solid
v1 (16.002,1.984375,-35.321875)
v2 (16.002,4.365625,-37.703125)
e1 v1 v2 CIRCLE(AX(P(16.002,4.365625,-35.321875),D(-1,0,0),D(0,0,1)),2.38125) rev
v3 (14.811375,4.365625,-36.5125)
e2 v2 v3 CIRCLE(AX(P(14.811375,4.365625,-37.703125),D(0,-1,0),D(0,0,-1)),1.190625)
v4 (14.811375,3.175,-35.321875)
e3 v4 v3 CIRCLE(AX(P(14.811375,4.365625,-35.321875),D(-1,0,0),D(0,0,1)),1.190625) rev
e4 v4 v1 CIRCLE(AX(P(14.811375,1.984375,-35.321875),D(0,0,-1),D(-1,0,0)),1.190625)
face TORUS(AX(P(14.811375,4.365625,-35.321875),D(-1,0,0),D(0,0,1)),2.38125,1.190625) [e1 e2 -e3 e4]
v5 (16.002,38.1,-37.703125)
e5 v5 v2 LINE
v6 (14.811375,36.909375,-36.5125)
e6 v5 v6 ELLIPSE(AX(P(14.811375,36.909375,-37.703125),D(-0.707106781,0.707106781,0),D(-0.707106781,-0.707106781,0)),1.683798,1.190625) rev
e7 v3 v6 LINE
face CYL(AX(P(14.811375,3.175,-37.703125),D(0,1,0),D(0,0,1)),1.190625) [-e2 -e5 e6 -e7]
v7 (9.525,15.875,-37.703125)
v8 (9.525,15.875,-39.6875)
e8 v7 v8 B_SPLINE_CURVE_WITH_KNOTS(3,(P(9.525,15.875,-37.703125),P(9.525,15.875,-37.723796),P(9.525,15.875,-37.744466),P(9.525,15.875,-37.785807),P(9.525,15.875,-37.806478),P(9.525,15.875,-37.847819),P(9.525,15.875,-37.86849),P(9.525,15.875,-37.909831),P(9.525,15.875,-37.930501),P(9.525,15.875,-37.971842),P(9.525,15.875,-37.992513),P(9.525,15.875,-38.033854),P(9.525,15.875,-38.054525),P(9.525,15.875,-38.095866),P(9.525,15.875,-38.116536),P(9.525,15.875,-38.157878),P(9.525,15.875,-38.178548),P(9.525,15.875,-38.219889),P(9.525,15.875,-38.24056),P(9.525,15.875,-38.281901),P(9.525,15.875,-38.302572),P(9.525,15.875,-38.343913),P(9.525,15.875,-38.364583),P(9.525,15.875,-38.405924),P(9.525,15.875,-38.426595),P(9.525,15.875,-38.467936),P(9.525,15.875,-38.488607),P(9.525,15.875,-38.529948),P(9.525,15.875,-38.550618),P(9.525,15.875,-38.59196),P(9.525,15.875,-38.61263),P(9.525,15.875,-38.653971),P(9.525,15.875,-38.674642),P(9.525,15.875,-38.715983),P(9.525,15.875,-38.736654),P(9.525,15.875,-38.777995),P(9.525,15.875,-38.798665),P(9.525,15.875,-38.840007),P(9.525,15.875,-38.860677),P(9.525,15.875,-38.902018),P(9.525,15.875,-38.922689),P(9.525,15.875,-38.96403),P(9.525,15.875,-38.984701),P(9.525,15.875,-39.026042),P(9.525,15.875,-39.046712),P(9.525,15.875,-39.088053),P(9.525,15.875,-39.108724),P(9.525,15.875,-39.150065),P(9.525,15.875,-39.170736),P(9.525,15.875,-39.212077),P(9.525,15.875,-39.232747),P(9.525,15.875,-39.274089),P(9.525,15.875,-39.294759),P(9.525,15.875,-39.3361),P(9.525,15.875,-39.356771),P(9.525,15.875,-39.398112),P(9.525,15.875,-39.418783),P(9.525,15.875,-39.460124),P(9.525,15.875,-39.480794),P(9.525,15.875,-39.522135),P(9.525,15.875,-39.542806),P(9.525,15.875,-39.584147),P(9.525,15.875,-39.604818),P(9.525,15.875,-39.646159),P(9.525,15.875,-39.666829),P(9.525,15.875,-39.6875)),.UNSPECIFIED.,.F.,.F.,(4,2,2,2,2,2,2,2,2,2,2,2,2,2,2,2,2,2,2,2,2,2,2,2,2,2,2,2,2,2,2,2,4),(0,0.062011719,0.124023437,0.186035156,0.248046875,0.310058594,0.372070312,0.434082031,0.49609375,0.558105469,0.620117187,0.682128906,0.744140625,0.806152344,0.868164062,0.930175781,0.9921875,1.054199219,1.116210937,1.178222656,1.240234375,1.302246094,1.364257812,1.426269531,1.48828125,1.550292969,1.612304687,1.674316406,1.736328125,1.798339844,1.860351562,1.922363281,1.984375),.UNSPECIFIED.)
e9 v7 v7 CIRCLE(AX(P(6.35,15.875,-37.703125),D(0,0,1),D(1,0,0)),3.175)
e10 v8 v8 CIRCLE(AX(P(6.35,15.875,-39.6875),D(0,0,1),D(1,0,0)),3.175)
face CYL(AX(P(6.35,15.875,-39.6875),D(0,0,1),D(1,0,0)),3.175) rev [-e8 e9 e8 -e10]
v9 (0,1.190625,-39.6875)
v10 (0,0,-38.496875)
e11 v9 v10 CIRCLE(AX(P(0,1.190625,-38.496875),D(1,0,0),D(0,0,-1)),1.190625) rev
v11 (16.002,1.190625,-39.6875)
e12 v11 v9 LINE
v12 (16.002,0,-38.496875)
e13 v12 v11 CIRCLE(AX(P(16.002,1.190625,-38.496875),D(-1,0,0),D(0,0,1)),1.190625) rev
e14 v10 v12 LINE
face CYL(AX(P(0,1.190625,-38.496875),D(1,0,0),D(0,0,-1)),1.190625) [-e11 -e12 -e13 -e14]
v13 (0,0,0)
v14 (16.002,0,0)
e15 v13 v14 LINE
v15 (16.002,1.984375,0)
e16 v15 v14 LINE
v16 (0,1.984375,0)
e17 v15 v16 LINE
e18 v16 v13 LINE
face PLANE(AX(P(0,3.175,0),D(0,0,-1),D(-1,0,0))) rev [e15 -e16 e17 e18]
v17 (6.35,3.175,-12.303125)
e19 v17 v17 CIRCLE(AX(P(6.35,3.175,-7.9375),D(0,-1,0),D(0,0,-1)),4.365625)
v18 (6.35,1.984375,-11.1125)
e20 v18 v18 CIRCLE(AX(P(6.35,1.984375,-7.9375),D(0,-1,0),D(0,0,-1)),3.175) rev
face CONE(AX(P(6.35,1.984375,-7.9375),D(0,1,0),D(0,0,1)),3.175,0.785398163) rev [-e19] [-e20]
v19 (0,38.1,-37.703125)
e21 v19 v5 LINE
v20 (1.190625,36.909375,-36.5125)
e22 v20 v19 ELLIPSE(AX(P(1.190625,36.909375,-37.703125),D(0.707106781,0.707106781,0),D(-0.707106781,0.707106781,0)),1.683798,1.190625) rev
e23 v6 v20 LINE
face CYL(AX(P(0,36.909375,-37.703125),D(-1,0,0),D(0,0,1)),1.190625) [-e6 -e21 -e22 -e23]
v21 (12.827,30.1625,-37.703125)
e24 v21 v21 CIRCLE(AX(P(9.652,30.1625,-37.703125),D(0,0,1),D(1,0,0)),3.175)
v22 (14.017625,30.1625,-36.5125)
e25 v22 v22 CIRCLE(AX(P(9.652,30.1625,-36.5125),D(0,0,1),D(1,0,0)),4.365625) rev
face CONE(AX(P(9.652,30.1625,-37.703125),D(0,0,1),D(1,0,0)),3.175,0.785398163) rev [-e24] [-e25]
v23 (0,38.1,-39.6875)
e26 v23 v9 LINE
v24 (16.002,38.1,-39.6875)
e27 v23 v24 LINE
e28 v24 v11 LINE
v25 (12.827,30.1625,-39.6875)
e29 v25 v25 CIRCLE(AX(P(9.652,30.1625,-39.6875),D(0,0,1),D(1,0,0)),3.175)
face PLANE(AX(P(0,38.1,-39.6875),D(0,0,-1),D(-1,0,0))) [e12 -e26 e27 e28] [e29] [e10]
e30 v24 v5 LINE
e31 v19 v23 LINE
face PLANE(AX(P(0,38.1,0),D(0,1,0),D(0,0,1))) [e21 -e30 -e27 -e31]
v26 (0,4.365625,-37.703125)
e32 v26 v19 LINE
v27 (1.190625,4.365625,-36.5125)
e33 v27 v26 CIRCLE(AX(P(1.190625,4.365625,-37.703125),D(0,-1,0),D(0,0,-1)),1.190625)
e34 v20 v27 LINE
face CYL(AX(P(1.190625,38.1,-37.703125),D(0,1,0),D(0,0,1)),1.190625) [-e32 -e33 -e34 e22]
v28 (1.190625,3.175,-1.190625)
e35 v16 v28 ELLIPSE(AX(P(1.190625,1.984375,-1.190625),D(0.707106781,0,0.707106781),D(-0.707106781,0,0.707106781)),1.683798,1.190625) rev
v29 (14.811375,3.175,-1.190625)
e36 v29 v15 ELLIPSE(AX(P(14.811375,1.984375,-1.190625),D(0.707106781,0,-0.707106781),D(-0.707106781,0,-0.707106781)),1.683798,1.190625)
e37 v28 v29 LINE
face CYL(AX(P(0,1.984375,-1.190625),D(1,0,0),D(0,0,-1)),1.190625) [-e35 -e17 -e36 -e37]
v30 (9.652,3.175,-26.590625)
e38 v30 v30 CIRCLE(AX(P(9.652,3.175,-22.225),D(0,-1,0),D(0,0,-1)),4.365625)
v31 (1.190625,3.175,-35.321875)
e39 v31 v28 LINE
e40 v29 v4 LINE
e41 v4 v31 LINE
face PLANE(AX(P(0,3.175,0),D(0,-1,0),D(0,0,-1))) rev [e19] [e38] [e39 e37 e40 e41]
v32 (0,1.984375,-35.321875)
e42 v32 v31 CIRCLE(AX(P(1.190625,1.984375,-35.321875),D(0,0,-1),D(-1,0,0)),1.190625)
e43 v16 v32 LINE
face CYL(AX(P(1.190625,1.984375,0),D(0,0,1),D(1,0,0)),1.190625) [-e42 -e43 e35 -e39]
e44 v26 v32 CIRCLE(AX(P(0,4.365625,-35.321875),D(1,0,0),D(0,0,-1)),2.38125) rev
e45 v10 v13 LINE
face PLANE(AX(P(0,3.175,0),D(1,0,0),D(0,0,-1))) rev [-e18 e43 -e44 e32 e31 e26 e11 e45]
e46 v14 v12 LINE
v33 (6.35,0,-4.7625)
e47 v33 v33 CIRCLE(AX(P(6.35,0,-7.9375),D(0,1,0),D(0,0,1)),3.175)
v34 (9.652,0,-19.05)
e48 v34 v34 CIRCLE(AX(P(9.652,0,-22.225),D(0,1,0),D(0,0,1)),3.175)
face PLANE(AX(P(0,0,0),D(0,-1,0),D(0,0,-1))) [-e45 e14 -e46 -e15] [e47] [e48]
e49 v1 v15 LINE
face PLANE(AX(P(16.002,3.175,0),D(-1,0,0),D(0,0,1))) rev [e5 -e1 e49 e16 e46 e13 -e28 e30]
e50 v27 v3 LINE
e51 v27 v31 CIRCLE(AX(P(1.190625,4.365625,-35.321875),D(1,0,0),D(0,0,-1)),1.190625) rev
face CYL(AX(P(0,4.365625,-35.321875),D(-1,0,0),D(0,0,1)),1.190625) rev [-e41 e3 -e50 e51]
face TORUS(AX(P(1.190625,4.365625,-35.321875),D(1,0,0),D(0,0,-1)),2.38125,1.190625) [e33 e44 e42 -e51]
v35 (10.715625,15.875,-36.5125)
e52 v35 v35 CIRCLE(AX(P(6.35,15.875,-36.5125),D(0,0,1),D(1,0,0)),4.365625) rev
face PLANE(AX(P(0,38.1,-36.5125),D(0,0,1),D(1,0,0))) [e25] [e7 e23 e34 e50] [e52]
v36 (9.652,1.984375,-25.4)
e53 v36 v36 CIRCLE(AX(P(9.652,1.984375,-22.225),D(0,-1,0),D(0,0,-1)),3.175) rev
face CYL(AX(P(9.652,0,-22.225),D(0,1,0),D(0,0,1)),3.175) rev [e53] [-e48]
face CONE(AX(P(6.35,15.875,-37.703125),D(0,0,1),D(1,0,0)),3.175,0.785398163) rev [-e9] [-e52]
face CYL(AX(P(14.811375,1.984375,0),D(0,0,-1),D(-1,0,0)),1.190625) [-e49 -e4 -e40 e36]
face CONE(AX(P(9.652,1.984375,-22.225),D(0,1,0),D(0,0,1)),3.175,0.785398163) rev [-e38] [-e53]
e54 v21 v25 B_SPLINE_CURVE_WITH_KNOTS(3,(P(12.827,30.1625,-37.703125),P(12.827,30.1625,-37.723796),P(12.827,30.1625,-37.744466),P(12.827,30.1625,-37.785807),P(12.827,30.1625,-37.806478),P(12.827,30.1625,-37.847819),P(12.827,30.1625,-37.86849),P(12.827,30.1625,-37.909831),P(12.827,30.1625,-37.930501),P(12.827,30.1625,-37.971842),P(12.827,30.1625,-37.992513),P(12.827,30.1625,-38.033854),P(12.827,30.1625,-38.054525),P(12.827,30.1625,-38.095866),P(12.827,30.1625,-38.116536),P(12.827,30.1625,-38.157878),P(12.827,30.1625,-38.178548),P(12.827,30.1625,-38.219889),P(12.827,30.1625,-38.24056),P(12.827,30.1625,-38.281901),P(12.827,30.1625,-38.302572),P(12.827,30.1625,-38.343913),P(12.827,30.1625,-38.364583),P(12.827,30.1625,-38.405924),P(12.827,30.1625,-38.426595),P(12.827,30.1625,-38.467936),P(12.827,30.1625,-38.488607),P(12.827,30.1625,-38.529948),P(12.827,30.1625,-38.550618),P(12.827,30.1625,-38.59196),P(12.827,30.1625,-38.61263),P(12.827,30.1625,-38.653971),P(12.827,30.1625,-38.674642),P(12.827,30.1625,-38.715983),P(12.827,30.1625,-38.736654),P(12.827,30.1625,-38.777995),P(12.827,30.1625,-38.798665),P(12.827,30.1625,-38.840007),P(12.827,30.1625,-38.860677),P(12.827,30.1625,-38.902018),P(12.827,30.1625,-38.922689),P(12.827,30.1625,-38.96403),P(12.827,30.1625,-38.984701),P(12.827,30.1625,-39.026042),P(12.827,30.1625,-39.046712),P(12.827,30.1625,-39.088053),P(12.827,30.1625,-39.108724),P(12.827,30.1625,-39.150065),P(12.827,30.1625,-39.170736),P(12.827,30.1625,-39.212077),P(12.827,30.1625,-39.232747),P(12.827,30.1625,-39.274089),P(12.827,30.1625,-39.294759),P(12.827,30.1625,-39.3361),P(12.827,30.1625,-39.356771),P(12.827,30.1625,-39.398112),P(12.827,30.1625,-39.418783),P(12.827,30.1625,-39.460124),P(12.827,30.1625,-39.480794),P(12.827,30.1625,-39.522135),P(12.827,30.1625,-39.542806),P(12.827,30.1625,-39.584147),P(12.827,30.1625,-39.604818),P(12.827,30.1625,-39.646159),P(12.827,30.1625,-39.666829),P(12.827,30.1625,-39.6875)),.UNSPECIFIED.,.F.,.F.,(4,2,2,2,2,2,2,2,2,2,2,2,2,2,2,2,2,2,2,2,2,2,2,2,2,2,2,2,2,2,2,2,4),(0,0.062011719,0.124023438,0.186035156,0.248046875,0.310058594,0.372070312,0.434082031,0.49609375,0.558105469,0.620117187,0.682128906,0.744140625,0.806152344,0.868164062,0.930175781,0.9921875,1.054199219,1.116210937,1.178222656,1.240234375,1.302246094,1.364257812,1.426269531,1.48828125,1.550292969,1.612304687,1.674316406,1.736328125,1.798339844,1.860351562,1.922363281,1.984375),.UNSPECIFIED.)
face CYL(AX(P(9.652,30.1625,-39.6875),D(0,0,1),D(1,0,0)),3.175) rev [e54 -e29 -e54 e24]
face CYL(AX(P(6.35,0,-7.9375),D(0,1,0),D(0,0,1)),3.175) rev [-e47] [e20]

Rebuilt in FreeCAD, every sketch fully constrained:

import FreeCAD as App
import Part
import Sketcher
Q = App.Units.Quantity


def edges_at(feature, points):
    """Names of the edges that pass closest to the given points."""
    edges = feature.Shape.Edges
    near = lambda p: min(range(len(edges)), key=lambda i: edges[i].distToShape(Part.Vertex(*p))[0])
    return sorted({f"Edge{near(p) + 1}" for p in points})


def add_polygon(sketch, points):
    """Adds a closed chain of lines whose ends are joined by coincident constraints."""
    first, n = sketch.GeometryCount, len(points)
    for a, b in zip(points, points[1:] + points[:1]):
        sketch.addGeometry(Part.LineSegment(App.Vector(*a, 0), App.Vector(*b, 0)), False)
    for i in range(n):
        sketch.addConstraint(Sketcher.Constraint("Coincident", first + i, 2, first + (i + 1) % n, 1))

doc = App.newDocument("Part")
body = doc.addObject("PartDesign::Body", "Body")

sketch1 = doc.addObject("Sketcher::SketchObject", "Sketch")
body.addObject(sketch1)
sketch1.AttachmentSupport = (doc.XZ_Plane, [""])
sketch1.MapMode = "FlatFace"
add_polygon(sketch1, [(0, -38), (0, 0), (16, 0), (16, -38)])
sketch1.addConstraint(Sketcher.Constraint("Vertical", 0))
sketch1.addConstraint(Sketcher.Constraint("Horizontal", 1))
sketch1.addConstraint(Sketcher.Constraint("Vertical", 2))
sketch1.addConstraint(Sketcher.Constraint("Horizontal", 3))
sketch1.addConstraint(Sketcher.Constraint("Coincident", 0, 2, -1, 1))
sketch1.addConstraint(Sketcher.Constraint("DistanceY", 0, 1, 0, 2, Q("1.5 in")))
sketch1.addConstraint(Sketcher.Constraint("DistanceX", 1, 1, 1, 2, Q("0.63 in")))
pad1 = doc.addObject("PartDesign::Pad", "Pad")
body.addObject(pad1)
pad1.Profile = sketch1
pad1.Length = Q("0.125 in")
pad1.Reversed = True

sketch2 = doc.addObject("Sketcher::SketchObject", "Sketch001")
body.addObject(sketch2)
sketch2.AttachmentSupport = (doc.XZ_Plane, [""])
sketch2.MapMode = "FlatFace"
add_polygon(sketch2, [(0, -36.5), (0, -39.7), (16, -39.7), (16, -36.5)])
sketch2.addConstraint(Sketcher.Constraint("Vertical", 0))
sketch2.addConstraint(Sketcher.Constraint("Horizontal", 1))
sketch2.addConstraint(Sketcher.Constraint("Vertical", 2))
sketch2.addConstraint(Sketcher.Constraint("Horizontal", 3))
sketch2.addConstraint(Sketcher.Constraint("PointOnObject", 0, 2, -2))
sketch2.addConstraint(Sketcher.Constraint("DistanceX", 1, 1, 1, 2, Q("0.63 in")))
sketch2.addConstraint(Sketcher.Constraint("DistanceY", 0, 2, 0, 1, Q("0.125 in")))
sketch2.addConstraint(Sketcher.Constraint("DistanceY", 0, 2, -1, 1, Q("1.5625 in")))
pad2 = doc.addObject("PartDesign::Pad", "Pad001")
body.addObject(pad2)
pad2.Profile = sketch2
pad2.Length = Q("1.5 in")
pad2.Reversed = True

sketch3 = doc.addObject("Sketcher::SketchObject", "Sketch002")
body.addObject(sketch3)
sketch3.AttachmentSupport = (doc.XY_Plane, [""])
sketch3.MapMode = "FlatFace"
sketch3.AttachmentOffset = App.Placement(App.Vector(0, 0, -1.4375 * 25.4), App.Rotation())
sketch3.addGeometry(Part.Circle(App.Vector(9.7, 30.2, 0), App.Vector(0, 0, 1), 3.2), False)
sketch3.addGeometry(Part.Circle(App.Vector(6.3, 15.9, 0), App.Vector(0, 0, 1), 3.2), False)
sketch3.addConstraint(Sketcher.Constraint("Equal", 0, 1))
sketch3.addConstraint(Sketcher.Constraint("Diameter", 0, Q("0.25 in")))
sketch3.addConstraint(Sketcher.Constraint("DistanceX", -1, 1, 0, 3, Q("0.38 in")))
sketch3.addConstraint(Sketcher.Constraint("DistanceX", -1, 1, 1, 3, Q("0.25 in")))
sketch3.addConstraint(Sketcher.Constraint("DistanceY", -1, 1, 0, 3, Q("1.1875 in")))
sketch3.addConstraint(Sketcher.Constraint("DistanceY", -1, 1, 1, 3, Q("0.625 in")))
pocket1 = doc.addObject("PartDesign::Pocket", "Pocket")
body.addObject(pocket1)
pocket1.Profile = sketch3
pocket1.Type = "ThroughAll"

sketch4 = doc.addObject("Sketcher::SketchObject", "Sketch003")
body.addObject(sketch4)
sketch4.AttachmentSupport = (doc.XZ_Plane, [""])
sketch4.MapMode = "FlatFace"
sketch4.AttachmentOffset = App.Placement(App.Vector(0, 0, -0.125 * 25.4), App.Rotation())
sketch4.addGeometry(Part.Circle(App.Vector(9.7, -22.2, 0), App.Vector(0, 0, 1), 3.2), False)
sketch4.addGeometry(Part.Circle(App.Vector(6.3, -7.9, 0), App.Vector(0, 0, 1), 3.2), False)
sketch4.addConstraint(Sketcher.Constraint("Equal", 0, 1))
sketch4.addConstraint(Sketcher.Constraint("Diameter", 0, Q("0.25 in")))
sketch4.addConstraint(Sketcher.Constraint("DistanceX", -1, 1, 0, 3, Q("0.38 in")))
sketch4.addConstraint(Sketcher.Constraint("DistanceX", -1, 1, 1, 3, Q("0.25 in")))
sketch4.addConstraint(Sketcher.Constraint("DistanceY", 0, 3, -1, 1, Q("0.875 in")))
sketch4.addConstraint(Sketcher.Constraint("DistanceY", 1, 3, -1, 1, Q("0.3125 in")))
pocket2 = doc.addObject("PartDesign::Pocket", "Pocket001")
body.addObject(pocket2)
pocket2.Profile = sketch4
pocket2.Type = "ThroughAll"
pocket2.Reversed = True
doc.recompute()

chamfer = doc.addObject("PartDesign::Chamfer", "Chamfer")
body.addObject(chamfer)
chamfer.Base = (pocket2, edges_at(pocket2, [
    (6.477, 30.163, -36.513),
    (3.175, 15.875, -36.513),
    (9.652, 3.175, -25.4),
    (6.35, 3.175, -11.113),
]))
chamfer.Size = Q("0.046875 in")
doc.recompute()

fillet = doc.addObject("PartDesign::Fillet", "Fillet")
body.addObject(fillet)
fillet.Base = (chamfer, edges_at(chamfer, [
    (16.002, 3.175, -18.256),
    (0, 3.175, -18.256),
    (8.001, 0, -39.688),
    (8.001, 38.1, -36.513),
    (0, 20.637, -36.513),
    (16.002, 20.637, -36.513),
    (8.001, 3.175, -36.513),
    (8.001, 3.175, 0),
]))
fillet.Radius = Q("0.046875 in")

doc.recompute()
